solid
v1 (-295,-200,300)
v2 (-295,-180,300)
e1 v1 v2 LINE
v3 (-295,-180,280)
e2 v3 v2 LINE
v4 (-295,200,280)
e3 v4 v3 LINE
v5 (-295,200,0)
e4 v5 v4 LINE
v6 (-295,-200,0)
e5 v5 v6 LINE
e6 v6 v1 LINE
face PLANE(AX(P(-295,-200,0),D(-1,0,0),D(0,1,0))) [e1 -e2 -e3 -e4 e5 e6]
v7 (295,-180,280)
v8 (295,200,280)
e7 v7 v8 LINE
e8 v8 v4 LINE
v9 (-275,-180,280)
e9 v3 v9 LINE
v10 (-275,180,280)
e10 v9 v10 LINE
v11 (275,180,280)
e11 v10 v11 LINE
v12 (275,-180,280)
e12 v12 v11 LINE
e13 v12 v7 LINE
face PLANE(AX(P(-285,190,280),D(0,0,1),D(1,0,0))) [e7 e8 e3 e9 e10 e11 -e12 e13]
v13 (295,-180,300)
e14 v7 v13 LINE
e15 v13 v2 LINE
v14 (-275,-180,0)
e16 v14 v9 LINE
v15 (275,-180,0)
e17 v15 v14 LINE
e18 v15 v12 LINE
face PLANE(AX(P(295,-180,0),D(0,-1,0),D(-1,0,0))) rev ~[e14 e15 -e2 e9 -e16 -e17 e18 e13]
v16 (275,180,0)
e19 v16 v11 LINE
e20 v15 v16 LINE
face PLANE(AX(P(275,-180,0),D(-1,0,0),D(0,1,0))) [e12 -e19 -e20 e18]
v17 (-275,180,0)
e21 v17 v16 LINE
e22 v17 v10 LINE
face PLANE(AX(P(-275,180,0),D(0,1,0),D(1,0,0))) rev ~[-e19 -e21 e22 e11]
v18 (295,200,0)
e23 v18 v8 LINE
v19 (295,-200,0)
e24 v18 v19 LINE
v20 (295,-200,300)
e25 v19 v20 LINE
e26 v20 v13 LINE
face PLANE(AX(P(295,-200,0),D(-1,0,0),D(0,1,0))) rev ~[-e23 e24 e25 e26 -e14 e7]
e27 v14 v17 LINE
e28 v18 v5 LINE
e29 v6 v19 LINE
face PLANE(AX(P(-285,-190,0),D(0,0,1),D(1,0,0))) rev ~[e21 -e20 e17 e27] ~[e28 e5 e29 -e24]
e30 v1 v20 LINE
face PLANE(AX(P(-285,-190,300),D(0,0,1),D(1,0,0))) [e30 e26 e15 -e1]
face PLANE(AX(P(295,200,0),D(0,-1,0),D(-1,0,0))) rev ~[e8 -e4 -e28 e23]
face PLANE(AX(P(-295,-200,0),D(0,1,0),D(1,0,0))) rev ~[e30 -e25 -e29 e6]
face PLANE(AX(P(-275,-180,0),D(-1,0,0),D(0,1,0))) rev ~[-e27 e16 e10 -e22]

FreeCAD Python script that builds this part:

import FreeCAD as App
import Part
import Sketcher
from FreeCAD import Vector

doc = App.newDocument("Part")
body = doc.addObject("PartDesign::Body", "Body")

# Sketch on XY plane
sketch1 = body.newObject("Sketcher::SketchObject", "Sketch")
sketch1.AttachmentSupport = (doc.getObject("XY_Plane"), [""])
sketch1.MapMode = "FlatFace"
sketch1.addGeometry([
    Part.LineSegment(Vector(-295, 200, 0), Vector(-295, -180, 0)),  # 0
    Part.LineSegment(Vector(-295, -180, 0), Vector(-275, -180, 0)),  # 1
    Part.LineSegment(Vector(-275, -180, 0), Vector(-275, 180, 0)),  # 2
    Part.LineSegment(Vector(-275, 180, 0), Vector(275, 180, 0)),  # 3
    Part.LineSegment(Vector(275, 180, 0), Vector(275, -180, 0)),  # 4
    Part.LineSegment(Vector(275, -180, 0), Vector(295, -180, 0)),  # 5
    Part.LineSegment(Vector(295, -180, 0), Vector(295, 200, 0)),  # 6
    Part.LineSegment(Vector(295, 200, 0), Vector(-295, 200, 0)),  # 7
], False)
sketch1.addConstraint([
    Sketcher.Constraint("Coincident", 0, 2, 1, 1),
    Sketcher.Constraint("Coincident", 1, 2, 2, 1),
    Sketcher.Constraint("Coincident", 2, 2, 3, 1),
    Sketcher.Constraint("Coincident", 3, 2, 4, 1),
    Sketcher.Constraint("Coincident", 4, 2, 5, 1),
    Sketcher.Constraint("Coincident", 5, 2, 6, 1),
    Sketcher.Constraint("Coincident", 6, 2, 7, 1),
    Sketcher.Constraint("Coincident", 7, 2, 0, 1),
    Sketcher.Constraint("Vertical", 0),
    Sketcher.Constraint("Horizontal", 1),
    Sketcher.Constraint("Vertical", 2),
    Sketcher.Constraint("Horizontal", 3),
    Sketcher.Constraint("Vertical", 4),
    Sketcher.Constraint("Horizontal", 5),
    Sketcher.Constraint("Vertical", 6),
    Sketcher.Constraint("Horizontal", 7),
    Sketcher.Constraint("Symmetric", 1, 2, 3, 2, -1, 1),
    Sketcher.Constraint("Symmetric", 0, 2, 5, 2, -2),
    Sketcher.Constraint("DistanceX", 1, 1, 1, 2, 20.0),
    Sketcher.Constraint("DistanceX", 3, 1, 3, 2, 550.0),
    Sketcher.Constraint("DistanceY", 0, 2, 0, 1, 380.0),
    Sketcher.Constraint("DistanceY", 2, 1, 2, 2, 360.0),
])
pad1 = body.newObject("PartDesign::Pad", "Pad")
pad1.Profile = sketch1
pad1.Length = 280

# Sketch on XY plane
sketch2 = body.newObject("Sketcher::SketchObject", "Sketch001")
sketch2.AttachmentSupport = (doc.getObject("XY_Plane"), [""])
sketch2.MapMode = "FlatFace"
sketch2.addGeometry([
    Part.LineSegment(Vector(-295, -180, 0), Vector(-295, -200, 0)),
    Part.LineSegment(Vector(-295, -200, 0), Vector(295, -200, 0)),
    Part.LineSegment(Vector(295, -200, 0), Vector(295, -180, 0)),
    Part.LineSegment(Vector(295, -180, 0), Vector(-295, -180, 0)),
], False)
sketch2.addConstraint([
    Sketcher.Constraint("Coincident", 0, 2, 1, 1),
    Sketcher.Constraint("Coincident", 1, 2, 2, 1),
    Sketcher.Constraint("Coincident", 2, 2, 3, 1),
    Sketcher.Constraint("Coincident", 3, 2, 0, 1),
    Sketcher.Constraint("Vertical", 0),
    Sketcher.Constraint("Horizontal", 1),
    Sketcher.Constraint("Vertical", 2),
    Sketcher.Constraint("Horizontal", 3),
    Sketcher.Constraint("DistanceX", 1, 1, 1, 2, 590.0),
    Sketcher.Constraint("DistanceY", 0, 2, 0, 1, 20.0),
    Sketcher.Constraint("DistanceX", 0, 2, -1, 1, 295.0),
    Sketcher.Constraint("DistanceY", 0, 2, -1, 1, 200.0),
])
pad2 = body.newObject("PartDesign::Pad", "Pad001")
pad2.Profile = sketch2
pad2.Length = 300

doc.recompute()
